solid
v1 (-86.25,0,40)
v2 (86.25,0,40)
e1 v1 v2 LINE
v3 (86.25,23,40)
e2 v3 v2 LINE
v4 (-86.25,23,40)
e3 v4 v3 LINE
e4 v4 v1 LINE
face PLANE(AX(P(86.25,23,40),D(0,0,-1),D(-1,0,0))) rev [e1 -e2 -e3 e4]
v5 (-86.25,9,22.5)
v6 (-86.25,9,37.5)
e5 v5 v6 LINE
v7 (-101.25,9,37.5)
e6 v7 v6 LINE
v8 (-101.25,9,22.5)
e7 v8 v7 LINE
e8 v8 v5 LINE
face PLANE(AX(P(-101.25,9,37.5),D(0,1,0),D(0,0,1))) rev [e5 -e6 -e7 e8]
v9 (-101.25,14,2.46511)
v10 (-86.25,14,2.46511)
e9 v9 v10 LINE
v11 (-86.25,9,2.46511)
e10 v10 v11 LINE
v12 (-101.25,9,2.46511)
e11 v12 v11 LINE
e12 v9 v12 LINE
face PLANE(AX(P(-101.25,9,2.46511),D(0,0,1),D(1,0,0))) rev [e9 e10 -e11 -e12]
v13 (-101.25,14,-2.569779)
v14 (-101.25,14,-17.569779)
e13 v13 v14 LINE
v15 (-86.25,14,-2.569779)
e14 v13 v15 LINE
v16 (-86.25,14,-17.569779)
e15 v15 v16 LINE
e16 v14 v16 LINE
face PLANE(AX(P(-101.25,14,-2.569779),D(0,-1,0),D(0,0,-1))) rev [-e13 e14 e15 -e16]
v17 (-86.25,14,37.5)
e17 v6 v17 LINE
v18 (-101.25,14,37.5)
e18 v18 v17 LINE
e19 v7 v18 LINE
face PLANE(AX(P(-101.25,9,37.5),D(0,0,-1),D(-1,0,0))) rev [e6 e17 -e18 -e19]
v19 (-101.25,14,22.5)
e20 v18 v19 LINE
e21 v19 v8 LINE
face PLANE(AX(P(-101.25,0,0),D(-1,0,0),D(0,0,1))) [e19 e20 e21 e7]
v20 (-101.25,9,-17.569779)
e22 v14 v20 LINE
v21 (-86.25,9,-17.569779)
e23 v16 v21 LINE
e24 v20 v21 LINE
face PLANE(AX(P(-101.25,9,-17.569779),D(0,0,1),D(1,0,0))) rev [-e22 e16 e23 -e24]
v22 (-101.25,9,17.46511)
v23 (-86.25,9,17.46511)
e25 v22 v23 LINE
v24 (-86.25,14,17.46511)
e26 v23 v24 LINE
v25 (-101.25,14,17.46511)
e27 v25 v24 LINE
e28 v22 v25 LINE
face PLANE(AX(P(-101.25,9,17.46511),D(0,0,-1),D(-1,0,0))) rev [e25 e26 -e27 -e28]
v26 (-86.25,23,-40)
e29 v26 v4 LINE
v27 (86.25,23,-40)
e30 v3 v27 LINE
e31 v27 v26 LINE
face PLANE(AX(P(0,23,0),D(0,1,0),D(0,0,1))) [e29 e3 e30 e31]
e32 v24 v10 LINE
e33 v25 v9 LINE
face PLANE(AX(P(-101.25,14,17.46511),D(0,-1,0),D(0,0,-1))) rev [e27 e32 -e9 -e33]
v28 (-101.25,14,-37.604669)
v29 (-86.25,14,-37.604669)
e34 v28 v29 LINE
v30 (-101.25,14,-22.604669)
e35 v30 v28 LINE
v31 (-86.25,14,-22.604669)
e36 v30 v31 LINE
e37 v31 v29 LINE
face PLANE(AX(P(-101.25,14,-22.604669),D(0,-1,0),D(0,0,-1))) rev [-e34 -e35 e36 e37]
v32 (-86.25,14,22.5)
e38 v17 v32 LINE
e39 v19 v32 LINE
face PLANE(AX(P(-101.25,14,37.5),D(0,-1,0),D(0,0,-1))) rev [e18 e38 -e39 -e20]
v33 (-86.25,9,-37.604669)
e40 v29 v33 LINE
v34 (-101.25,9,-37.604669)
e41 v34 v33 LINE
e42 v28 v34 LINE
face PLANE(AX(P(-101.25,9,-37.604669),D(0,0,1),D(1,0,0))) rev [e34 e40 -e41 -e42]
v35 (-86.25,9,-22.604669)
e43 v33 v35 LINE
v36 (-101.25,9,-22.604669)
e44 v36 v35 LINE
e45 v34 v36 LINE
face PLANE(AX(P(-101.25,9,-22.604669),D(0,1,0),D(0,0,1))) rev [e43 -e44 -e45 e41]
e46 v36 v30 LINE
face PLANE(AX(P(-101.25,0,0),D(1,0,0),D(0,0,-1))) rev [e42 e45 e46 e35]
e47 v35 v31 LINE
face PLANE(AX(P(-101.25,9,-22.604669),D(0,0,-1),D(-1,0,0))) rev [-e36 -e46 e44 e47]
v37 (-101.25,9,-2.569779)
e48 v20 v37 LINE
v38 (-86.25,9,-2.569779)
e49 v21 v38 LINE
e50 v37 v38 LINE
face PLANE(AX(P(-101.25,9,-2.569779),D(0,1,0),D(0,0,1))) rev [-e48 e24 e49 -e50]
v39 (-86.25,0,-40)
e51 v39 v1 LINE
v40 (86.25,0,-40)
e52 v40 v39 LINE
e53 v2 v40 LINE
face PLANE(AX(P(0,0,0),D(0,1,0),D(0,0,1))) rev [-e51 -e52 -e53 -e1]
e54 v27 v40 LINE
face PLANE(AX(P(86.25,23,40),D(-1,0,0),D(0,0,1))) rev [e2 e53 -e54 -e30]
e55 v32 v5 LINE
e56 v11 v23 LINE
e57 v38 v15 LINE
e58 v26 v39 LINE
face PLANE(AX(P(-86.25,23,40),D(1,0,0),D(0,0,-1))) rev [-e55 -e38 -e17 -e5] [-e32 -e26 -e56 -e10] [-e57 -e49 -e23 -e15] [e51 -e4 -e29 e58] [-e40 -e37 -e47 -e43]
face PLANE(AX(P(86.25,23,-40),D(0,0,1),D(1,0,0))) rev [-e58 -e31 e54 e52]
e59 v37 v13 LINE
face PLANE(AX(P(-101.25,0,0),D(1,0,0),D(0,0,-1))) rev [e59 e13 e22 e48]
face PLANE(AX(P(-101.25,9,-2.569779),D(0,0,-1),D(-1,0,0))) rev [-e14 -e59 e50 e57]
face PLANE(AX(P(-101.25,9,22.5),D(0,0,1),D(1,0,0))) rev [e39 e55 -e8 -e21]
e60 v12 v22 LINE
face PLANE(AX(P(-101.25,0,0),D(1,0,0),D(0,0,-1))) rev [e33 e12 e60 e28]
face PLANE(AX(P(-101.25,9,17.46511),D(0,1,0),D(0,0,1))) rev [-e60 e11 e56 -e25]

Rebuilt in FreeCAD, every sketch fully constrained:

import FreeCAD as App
import Part
import Sketcher

doc = App.newDocument("Part")
params = doc.addObject("Spreadsheet::Sheet", "Params")
for row, (alias, value) in enumerate([
    ("sketch1_height", "80 mm"),
    ("sketch1_width", "172.5 mm"),
    ("pad1_length", "23 mm"),
    ("sketch2_width", "5 mm"),
    ("sketch2_height", "15 mm"),
    ("pad2_length", "15 mm"),
], start=1):
    params.set(f"A{row}", alias)
    params.set(f"B{row}", "=" + value)
    params.setAlias(f"B{row}", alias)

body = doc.addObject("PartDesign::Body", "Body")

# Sketch on XZ plane
sketch1 = body.newObject("Sketcher::SketchObject", "Sketch")
sketch1.AttachmentSupport = (doc.getObject("XZ_Plane"), [""])
sketch1.MapMode = "FlatFace"
sketch1.addGeometry([
    Part.LineSegment(App.Vector(-86.25, -40, 0), App.Vector(-86.25, 40, 0)),
    Part.LineSegment(App.Vector(-86.25, 40, 0), App.Vector(86.25, 40, 0)),
    Part.LineSegment(App.Vector(86.25, 40, 0), App.Vector(86.25, -40, 0)),
    Part.LineSegment(App.Vector(86.25, -40, 0), App.Vector(-86.25, -40, 0)),
], False)
sketch1.addConstraint([
    Sketcher.Constraint("Coincident", 0, 2, 1, 1),
    Sketcher.Constraint("Coincident", 1, 2, 2, 1),
    Sketcher.Constraint("Coincident", 2, 2, 3, 1),
    Sketcher.Constraint("Coincident", 3, 2, 0, 1),
    Sketcher.Constraint("Vertical", 0),
    Sketcher.Constraint("Horizontal", 1),
    Sketcher.Constraint("Vertical", 2),
    Sketcher.Constraint("Horizontal", 3),
    Sketcher.Constraint("Symmetric", 0, 2, 2, 2, -1, 1),
    Sketcher.Constraint("DistanceY", 0, 1, 0, 2, 80.0),
    Sketcher.Constraint("DistanceX", 1, 1, 1, 2, 172.5),
])
sketch1.setExpression("Constraints[9]", "Params.sketch1_height")
sketch1.setExpression("Constraints[10]", "Params.sketch1_width")
pad1 = body.newObject("PartDesign::Pad", "Pad")
pad1.Profile = sketch1
pad1.setExpression("Length", "Params.pad1_length")
pad1.Reversed = True

# Sketch on YZ plane
sketch2 = body.newObject("Sketcher::SketchObject", "Sketch001")
sketch2.AttachmentSupport = (doc.getObject("YZ_Plane"), [""])
sketch2.MapMode = "FlatFace"
sketch2.AttachmentOffset = App.Placement(App.Vector(0, 0, -86.25), App.Rotation())
sketch2.addGeometry([
    Part.LineSegment(App.Vector(14, 2.46511, 0), App.Vector(9, 2.46511, 0)),  # 0
    Part.LineSegment(App.Vector(9, 2.46511, 0), App.Vector(9, 17.46511, 0)),  # 1
    Part.LineSegment(App.Vector(9, 17.46511, 0), App.Vector(14, 17.46511, 0)),  # 2
    Part.LineSegment(App.Vector(14, 17.46511, 0), App.Vector(14, 2.46511, 0)),  # 3
    Part.LineSegment(App.Vector(14, 22.5, 0), App.Vector(9, 22.5, 0)),  # 4
    Part.LineSegment(App.Vector(9, 22.5, 0), App.Vector(9, 37.5, 0)),  # 5
    Part.LineSegment(App.Vector(9, 37.5, 0), App.Vector(14, 37.5, 0)),  # 6
    Part.LineSegment(App.Vector(14, 37.5, 0), App.Vector(14, 22.5, 0)),  # 7
    Part.LineSegment(App.Vector(14, -17.569779, 0), App.Vector(9, -17.569779, 0)),  # 8
    Part.LineSegment(App.Vector(9, -17.569779, 0), App.Vector(9, -2.569779, 0)),  # 9
    Part.LineSegment(App.Vector(9, -2.569779, 0), App.Vector(14, -2.569779, 0)),  # 10
    Part.LineSegment(App.Vector(14, -2.569779, 0), App.Vector(14, -17.569779, 0)),  # 11
    Part.LineSegment(App.Vector(14, -37.604669, 0), App.Vector(9, -37.604669, 0)),  # 12
    Part.LineSegment(App.Vector(9, -37.604669, 0), App.Vector(9, -22.604669, 0)),  # 13
    Part.LineSegment(App.Vector(9, -22.604669, 0), App.Vector(14, -22.604669, 0)),  # 14
    Part.LineSegment(App.Vector(14, -22.604669, 0), App.Vector(14, -37.604669, 0)),  # 15
], False)
sketch2.addConstraint([
    Sketcher.Constraint("Coincident", 0, 2, 1, 1),
    Sketcher.Constraint("Coincident", 1, 2, 2, 1),
    Sketcher.Constraint("Coincident", 2, 2, 3, 1),
    Sketcher.Constraint("Coincident", 3, 2, 0, 1),
    Sketcher.Constraint("Coincident", 4, 2, 5, 1),
    Sketcher.Constraint("Coincident", 5, 2, 6, 1),
    Sketcher.Constraint("Coincident", 6, 2, 7, 1),
    Sketcher.Constraint("Coincident", 7, 2, 4, 1),
    Sketcher.Constraint("Coincident", 8, 2, 9, 1),
    Sketcher.Constraint("Coincident", 9, 2, 10, 1),
    Sketcher.Constraint("Coincident", 10, 2, 11, 1),
    Sketcher.Constraint("Coincident", 11, 2, 8, 1),
    Sketcher.Constraint("Coincident", 12, 2, 13, 1),
    Sketcher.Constraint("Coincident", 13, 2, 14, 1),
    Sketcher.Constraint("Coincident", 14, 2, 15, 1),
    Sketcher.Constraint("Coincident", 15, 2, 12, 1),
    Sketcher.Constraint("Horizontal", 0),
    Sketcher.Constraint("Vertical", 1),
    Sketcher.Constraint("Horizontal", 2),
    Sketcher.Constraint("Vertical", 3),
    Sketcher.Constraint("Horizontal", 4),
    Sketcher.Constraint("Vertical", 5),
    Sketcher.Constraint("Horizontal", 6),
    Sketcher.Constraint("Vertical", 7),
    Sketcher.Constraint("Horizontal", 8),
    Sketcher.Constraint("Vertical", 9),
    Sketcher.Constraint("Horizontal", 10),
    Sketcher.Constraint("Vertical", 11),
    Sketcher.Constraint("Horizontal", 12),
    Sketcher.Constraint("Vertical", 13),
    Sketcher.Constraint("Horizontal", 14),
    Sketcher.Constraint("Vertical", 15),
    Sketcher.Constraint("Vertical", 1, 2, 4, 2),
    Sketcher.Constraint("Vertical", 3, 2, 6, 2),
    Sketcher.Constraint("Vertical", 5, 2, 8, 2),
    Sketcher.Constraint("Vertical", 7, 2, 10, 2),
    Sketcher.Constraint("Vertical", 9, 2, 12, 2),
    Sketcher.Constraint("Vertical", 11, 2, 14, 2),
    Sketcher.Constraint("Equal", 3, 5),
    Sketcher.Constraint("Equal", 7, 9),
    Sketcher.Constraint("Equal", 11, 13),
    Sketcher.Constraint("DistanceX", 0, 2, 0, 1, 5.0),
    Sketcher.Constraint("DistanceY", 1, 1, 1, 2, 15.0),
    Sketcher.Constraint("DistanceX", -1, 1, 0, 2, 9.0),
    Sketcher.Constraint("DistanceY", -1, 1, 4, 2, 22.5),
    Sketcher.Constraint("DistanceY", -1, 1, 0, 2, 2.46511),
    Sketcher.Constraint("DistanceY", 8, 2, -1, 1, 17.569779),
    Sketcher.Constraint("DistanceY", 12, 2, -1, 1, 37.604669),
])
sketch2.setExpression("Constraints[41]", "Params.sketch2_width")
sketch2.setExpression("Constraints[42]", "Params.sketch2_height")
pad2 = body.newObject("PartDesign::Pad", "Pad001")
pad2.Profile = sketch2
pad2.setExpression("Length", "Params.pad2_length")
pad2.Reversed = True

doc.recompute()
